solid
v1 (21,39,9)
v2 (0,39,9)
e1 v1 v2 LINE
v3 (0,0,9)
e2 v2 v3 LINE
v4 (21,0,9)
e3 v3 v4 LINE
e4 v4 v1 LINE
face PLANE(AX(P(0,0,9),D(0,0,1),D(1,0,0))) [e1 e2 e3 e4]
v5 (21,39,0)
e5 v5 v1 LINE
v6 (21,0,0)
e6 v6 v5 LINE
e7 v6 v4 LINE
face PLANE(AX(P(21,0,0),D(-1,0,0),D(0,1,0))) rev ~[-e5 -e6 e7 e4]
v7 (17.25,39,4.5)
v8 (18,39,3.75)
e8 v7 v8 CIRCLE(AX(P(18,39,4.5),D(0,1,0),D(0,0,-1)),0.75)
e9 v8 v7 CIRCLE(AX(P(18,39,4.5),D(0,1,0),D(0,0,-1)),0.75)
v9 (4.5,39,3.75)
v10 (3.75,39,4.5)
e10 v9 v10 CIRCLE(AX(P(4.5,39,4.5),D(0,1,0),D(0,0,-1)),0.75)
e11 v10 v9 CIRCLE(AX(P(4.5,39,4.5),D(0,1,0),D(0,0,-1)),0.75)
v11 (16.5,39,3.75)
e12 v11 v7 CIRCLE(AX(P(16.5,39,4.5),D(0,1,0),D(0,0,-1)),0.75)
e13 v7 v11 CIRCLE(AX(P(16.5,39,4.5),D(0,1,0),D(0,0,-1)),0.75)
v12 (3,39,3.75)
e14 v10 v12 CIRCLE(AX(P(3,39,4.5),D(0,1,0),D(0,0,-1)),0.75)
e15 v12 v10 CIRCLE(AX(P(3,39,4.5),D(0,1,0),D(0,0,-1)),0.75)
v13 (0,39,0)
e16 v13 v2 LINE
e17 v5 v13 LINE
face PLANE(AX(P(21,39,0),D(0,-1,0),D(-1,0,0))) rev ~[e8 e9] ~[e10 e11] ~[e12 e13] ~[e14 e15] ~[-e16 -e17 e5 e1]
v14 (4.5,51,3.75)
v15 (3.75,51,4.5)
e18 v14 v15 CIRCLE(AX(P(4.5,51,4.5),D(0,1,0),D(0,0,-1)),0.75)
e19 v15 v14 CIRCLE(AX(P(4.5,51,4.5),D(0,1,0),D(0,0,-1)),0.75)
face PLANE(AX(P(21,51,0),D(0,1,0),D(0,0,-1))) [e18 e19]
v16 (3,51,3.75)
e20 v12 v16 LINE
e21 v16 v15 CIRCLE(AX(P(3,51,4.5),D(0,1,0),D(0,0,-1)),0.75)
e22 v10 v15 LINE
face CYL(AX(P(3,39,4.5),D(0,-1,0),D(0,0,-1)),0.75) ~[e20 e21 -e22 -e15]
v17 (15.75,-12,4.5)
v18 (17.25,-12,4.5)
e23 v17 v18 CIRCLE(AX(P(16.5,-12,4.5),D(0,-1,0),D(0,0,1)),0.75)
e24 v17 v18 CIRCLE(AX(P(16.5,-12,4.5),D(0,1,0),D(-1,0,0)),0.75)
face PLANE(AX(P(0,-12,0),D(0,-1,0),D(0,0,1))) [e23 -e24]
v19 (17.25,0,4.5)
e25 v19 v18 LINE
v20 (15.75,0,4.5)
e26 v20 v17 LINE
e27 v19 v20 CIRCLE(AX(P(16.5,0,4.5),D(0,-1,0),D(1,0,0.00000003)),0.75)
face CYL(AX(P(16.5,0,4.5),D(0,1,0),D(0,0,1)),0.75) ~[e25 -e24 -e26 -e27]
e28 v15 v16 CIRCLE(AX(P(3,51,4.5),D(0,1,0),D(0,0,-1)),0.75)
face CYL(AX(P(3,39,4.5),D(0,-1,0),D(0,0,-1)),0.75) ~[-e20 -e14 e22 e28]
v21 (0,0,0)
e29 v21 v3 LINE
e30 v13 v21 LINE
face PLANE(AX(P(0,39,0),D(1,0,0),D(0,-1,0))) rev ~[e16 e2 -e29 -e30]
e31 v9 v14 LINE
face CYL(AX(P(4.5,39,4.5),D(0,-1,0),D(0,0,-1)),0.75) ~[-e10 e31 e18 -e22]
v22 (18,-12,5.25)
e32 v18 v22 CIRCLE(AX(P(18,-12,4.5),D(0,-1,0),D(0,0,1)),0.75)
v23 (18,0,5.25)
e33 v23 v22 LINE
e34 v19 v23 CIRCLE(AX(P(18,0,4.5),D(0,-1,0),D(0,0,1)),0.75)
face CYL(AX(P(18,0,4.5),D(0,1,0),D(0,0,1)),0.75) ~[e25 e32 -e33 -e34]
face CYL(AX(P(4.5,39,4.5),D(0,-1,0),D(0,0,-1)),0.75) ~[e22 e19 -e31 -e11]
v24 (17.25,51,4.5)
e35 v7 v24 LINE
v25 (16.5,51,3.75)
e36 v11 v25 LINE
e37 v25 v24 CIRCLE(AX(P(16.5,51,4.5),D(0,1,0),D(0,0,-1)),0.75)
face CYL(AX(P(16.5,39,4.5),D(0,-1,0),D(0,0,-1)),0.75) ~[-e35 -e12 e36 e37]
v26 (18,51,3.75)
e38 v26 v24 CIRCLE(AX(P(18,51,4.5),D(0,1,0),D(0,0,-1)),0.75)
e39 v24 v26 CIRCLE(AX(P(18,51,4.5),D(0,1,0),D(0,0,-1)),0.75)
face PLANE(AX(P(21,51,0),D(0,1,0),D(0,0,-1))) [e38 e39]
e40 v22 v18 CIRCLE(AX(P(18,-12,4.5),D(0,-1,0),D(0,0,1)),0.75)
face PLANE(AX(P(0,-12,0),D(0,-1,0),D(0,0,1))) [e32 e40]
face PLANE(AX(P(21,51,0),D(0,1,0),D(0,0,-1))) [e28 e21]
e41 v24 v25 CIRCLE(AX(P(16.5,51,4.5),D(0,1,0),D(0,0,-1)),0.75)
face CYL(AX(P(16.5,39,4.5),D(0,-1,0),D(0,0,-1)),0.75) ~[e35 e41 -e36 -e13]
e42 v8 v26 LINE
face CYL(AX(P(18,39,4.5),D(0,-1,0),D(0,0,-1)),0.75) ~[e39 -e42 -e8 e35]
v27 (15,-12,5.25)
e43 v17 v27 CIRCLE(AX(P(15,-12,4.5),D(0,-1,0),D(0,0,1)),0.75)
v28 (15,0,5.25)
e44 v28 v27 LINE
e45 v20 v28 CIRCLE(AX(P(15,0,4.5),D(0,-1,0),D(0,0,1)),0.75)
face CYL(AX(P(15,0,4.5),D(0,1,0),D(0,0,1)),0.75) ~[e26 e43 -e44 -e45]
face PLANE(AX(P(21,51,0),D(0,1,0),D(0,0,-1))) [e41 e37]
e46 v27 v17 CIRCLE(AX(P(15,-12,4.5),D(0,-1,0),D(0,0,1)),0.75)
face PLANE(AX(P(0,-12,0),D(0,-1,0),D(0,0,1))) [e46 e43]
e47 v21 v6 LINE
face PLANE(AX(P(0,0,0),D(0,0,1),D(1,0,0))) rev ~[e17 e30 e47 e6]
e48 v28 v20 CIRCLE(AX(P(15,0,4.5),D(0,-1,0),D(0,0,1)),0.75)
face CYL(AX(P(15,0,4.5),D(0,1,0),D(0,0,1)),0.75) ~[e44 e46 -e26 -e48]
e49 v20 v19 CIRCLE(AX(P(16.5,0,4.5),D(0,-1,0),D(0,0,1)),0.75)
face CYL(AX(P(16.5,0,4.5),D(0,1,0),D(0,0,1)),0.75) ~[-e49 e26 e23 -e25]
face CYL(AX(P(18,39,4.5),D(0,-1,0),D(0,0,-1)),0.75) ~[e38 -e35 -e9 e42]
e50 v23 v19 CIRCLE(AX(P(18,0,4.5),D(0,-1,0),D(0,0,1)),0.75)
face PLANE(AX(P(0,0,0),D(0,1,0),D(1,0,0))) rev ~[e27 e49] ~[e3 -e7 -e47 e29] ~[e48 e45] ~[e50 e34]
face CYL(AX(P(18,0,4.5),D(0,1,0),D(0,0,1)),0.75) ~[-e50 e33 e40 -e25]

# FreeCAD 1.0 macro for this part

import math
import FreeCAD as App
import Part
import Sketcher
Q = App.Units.Quantity


def add_polygon(sketch, points):
    """Adds a closed chain of lines whose ends are joined by coincident constraints."""
    first, n = sketch.GeometryCount, len(points)
    for a, b in zip(points, points[1:] + points[:1]):
        sketch.addGeometry(Part.LineSegment(App.Vector(*a, 0), App.Vector(*b, 0)), False)
    for i in range(n):
        sketch.addConstraint(Sketcher.Constraint("Coincident", first + i, 2, first + (i + 1) % n, 1))

doc = App.newDocument("Part")
body = doc.addObject("PartDesign::Body", "Body")

# Sketch on XY plane
sketch1 = body.newObject("Sketcher::SketchObject", "Sketch")
sketch1.AttachmentSupport = (doc.getObject("XY_Plane"), [""])
sketch1.MapMode = "FlatFace"
add_polygon(sketch1, [(0, 39), (0, 0), (21, 0), (21, 39)])  # lines 0-3
sketch1.addConstraint([
    Sketcher.Constraint("Vertical", 0),
    Sketcher.Constraint("Horizontal", 1),
    Sketcher.Constraint("Vertical", 2),
    Sketcher.Constraint("Horizontal", 3),
    Sketcher.Constraint("Coincident", 0, 2, -1, 1),
    Sketcher.Constraint("DistanceX", 1, 1, 1, 2, Q("21 mm")),
    Sketcher.Constraint("DistanceY", 0, 2, 0, 1, Q("39 mm")),
])
pad1 = body.newObject("PartDesign::Pad", "Pad")
pad1.Profile = sketch1
pad1.Length = 9

# Sketch on XZ plane
sketch2 = body.newObject("Sketcher::SketchObject", "Sketch001")
sketch2.AttachmentSupport = (doc.getObject("XZ_Plane"), [""])
sketch2.MapMode = "FlatFace"
sketch2.AttachmentOffset = App.Placement(App.Vector(0, 0, -39), App.Rotation())
sketch2.addGeometry([
    Part.Circle(App.Vector(18, 4.5, 0), App.Vector(0, 0, 1), 0.8),
    Part.Circle(App.Vector(16.5, 4.5, 0), App.Vector(0, 0, 1), 0.8),
    Part.Circle(App.Vector(4.5, 4.5, 0), App.Vector(0, 0, 1), 0.8),
    Part.Circle(App.Vector(3, 4.5, 0), App.Vector(0, 0, 1), 0.8),
], False)
sketch2.addConstraint([
    Sketcher.Constraint("Equal", 0, 1),
    Sketcher.Constraint("Equal", 1, 2),
    Sketcher.Constraint("Equal", 2, 3),
    Sketcher.Constraint("Horizontal", 0, 3, 1, 3),
    Sketcher.Constraint("Horizontal", 1, 3, 2, 3),
    Sketcher.Constraint("Horizontal", 2, 3, 3, 3),
    Sketcher.Constraint("Diameter", 0, Q("1.5 mm")),
    Sketcher.Constraint("DistanceX", -1, 1, 3, 3, Q("3 mm")),
    Sketcher.Constraint("DistanceX", 1, 3, 0, 3, Q("1.5 mm")),
    Sketcher.Constraint("DistanceX", 3, 3, 2, 3, Q("1.5 mm")),
    Sketcher.Constraint("DistanceX", -1, 1, 0, 3, Q("18 mm")),
    Sketcher.Constraint("DistanceY", -1, 1, 0, 3, Q("4.5 mm")),
])
pad2 = body.newObject("PartDesign::Pad", "Pad001")
pad2.Profile = sketch2
pad2.Length = 12
pad2.Reversed = True

# Sketch on XZ plane
sketch3 = body.newObject("Sketcher::SketchObject", "Sketch002")
sketch3.AttachmentSupport = (doc.getObject("XZ_Plane"), [""])
sketch3.MapMode = "FlatFace"
sketch3.addGeometry([
    Part.Circle(App.Vector(18, 4.5, 0), App.Vector(0, 0, 1), 0.8),
    Part.Circle(App.Vector(15, 4.5, 0), App.Vector(0, 0, 1), 0.8),
    Part.ArcOfCircle(Part.Circle(App.Vector(16.5, 4.5, 0), App.Vector(0, 0, 1), 0.8), math.radians(180), math.radians(360)),
    Part.ArcOfCircle(Part.Circle(App.Vector(16.5, 4.5, 0), App.Vector(0, 0, 1), 0.8), math.radians(0), math.radians(180)),
], False)
sketch3.addConstraint([
    Sketcher.Constraint("Tangent", 2, 1, 3, 2),
    Sketcher.Constraint("Coincident", 3, 1, 2, 2),
    Sketcher.Constraint("Equal", 0, 1),
    Sketcher.Constraint("Equal", 1, 2),
    Sketcher.Constraint("Horizontal", 0, 3, 1, 3),
    Sketcher.Constraint("Horizontal", 1, 3, 2, 3),
    Sketcher.Constraint("Horizontal", 3, 3, 2, 1),
    Sketcher.Constraint("Horizontal", 2, 1, 3, 1),
    Sketcher.Constraint("Diameter", 0, Q("1.5 mm")),
    Sketcher.Constraint("DistanceX", 1, 3, 0, 3, Q("3 mm")),
    Sketcher.Constraint("DistanceX", 2, 3, 0, 3, Q("1.5 mm")),
    Sketcher.Constraint("DistanceX", -1, 1, 0, 3, Q("18 mm")),
    Sketcher.Constraint("DistanceY", -1, 1, 0, 3, Q("4.5 mm")),
])
pad3 = body.newObject("PartDesign::Pad", "Pad002")
pad3.Profile = sketch3
pad3.Length = 12

doc.recompute()
